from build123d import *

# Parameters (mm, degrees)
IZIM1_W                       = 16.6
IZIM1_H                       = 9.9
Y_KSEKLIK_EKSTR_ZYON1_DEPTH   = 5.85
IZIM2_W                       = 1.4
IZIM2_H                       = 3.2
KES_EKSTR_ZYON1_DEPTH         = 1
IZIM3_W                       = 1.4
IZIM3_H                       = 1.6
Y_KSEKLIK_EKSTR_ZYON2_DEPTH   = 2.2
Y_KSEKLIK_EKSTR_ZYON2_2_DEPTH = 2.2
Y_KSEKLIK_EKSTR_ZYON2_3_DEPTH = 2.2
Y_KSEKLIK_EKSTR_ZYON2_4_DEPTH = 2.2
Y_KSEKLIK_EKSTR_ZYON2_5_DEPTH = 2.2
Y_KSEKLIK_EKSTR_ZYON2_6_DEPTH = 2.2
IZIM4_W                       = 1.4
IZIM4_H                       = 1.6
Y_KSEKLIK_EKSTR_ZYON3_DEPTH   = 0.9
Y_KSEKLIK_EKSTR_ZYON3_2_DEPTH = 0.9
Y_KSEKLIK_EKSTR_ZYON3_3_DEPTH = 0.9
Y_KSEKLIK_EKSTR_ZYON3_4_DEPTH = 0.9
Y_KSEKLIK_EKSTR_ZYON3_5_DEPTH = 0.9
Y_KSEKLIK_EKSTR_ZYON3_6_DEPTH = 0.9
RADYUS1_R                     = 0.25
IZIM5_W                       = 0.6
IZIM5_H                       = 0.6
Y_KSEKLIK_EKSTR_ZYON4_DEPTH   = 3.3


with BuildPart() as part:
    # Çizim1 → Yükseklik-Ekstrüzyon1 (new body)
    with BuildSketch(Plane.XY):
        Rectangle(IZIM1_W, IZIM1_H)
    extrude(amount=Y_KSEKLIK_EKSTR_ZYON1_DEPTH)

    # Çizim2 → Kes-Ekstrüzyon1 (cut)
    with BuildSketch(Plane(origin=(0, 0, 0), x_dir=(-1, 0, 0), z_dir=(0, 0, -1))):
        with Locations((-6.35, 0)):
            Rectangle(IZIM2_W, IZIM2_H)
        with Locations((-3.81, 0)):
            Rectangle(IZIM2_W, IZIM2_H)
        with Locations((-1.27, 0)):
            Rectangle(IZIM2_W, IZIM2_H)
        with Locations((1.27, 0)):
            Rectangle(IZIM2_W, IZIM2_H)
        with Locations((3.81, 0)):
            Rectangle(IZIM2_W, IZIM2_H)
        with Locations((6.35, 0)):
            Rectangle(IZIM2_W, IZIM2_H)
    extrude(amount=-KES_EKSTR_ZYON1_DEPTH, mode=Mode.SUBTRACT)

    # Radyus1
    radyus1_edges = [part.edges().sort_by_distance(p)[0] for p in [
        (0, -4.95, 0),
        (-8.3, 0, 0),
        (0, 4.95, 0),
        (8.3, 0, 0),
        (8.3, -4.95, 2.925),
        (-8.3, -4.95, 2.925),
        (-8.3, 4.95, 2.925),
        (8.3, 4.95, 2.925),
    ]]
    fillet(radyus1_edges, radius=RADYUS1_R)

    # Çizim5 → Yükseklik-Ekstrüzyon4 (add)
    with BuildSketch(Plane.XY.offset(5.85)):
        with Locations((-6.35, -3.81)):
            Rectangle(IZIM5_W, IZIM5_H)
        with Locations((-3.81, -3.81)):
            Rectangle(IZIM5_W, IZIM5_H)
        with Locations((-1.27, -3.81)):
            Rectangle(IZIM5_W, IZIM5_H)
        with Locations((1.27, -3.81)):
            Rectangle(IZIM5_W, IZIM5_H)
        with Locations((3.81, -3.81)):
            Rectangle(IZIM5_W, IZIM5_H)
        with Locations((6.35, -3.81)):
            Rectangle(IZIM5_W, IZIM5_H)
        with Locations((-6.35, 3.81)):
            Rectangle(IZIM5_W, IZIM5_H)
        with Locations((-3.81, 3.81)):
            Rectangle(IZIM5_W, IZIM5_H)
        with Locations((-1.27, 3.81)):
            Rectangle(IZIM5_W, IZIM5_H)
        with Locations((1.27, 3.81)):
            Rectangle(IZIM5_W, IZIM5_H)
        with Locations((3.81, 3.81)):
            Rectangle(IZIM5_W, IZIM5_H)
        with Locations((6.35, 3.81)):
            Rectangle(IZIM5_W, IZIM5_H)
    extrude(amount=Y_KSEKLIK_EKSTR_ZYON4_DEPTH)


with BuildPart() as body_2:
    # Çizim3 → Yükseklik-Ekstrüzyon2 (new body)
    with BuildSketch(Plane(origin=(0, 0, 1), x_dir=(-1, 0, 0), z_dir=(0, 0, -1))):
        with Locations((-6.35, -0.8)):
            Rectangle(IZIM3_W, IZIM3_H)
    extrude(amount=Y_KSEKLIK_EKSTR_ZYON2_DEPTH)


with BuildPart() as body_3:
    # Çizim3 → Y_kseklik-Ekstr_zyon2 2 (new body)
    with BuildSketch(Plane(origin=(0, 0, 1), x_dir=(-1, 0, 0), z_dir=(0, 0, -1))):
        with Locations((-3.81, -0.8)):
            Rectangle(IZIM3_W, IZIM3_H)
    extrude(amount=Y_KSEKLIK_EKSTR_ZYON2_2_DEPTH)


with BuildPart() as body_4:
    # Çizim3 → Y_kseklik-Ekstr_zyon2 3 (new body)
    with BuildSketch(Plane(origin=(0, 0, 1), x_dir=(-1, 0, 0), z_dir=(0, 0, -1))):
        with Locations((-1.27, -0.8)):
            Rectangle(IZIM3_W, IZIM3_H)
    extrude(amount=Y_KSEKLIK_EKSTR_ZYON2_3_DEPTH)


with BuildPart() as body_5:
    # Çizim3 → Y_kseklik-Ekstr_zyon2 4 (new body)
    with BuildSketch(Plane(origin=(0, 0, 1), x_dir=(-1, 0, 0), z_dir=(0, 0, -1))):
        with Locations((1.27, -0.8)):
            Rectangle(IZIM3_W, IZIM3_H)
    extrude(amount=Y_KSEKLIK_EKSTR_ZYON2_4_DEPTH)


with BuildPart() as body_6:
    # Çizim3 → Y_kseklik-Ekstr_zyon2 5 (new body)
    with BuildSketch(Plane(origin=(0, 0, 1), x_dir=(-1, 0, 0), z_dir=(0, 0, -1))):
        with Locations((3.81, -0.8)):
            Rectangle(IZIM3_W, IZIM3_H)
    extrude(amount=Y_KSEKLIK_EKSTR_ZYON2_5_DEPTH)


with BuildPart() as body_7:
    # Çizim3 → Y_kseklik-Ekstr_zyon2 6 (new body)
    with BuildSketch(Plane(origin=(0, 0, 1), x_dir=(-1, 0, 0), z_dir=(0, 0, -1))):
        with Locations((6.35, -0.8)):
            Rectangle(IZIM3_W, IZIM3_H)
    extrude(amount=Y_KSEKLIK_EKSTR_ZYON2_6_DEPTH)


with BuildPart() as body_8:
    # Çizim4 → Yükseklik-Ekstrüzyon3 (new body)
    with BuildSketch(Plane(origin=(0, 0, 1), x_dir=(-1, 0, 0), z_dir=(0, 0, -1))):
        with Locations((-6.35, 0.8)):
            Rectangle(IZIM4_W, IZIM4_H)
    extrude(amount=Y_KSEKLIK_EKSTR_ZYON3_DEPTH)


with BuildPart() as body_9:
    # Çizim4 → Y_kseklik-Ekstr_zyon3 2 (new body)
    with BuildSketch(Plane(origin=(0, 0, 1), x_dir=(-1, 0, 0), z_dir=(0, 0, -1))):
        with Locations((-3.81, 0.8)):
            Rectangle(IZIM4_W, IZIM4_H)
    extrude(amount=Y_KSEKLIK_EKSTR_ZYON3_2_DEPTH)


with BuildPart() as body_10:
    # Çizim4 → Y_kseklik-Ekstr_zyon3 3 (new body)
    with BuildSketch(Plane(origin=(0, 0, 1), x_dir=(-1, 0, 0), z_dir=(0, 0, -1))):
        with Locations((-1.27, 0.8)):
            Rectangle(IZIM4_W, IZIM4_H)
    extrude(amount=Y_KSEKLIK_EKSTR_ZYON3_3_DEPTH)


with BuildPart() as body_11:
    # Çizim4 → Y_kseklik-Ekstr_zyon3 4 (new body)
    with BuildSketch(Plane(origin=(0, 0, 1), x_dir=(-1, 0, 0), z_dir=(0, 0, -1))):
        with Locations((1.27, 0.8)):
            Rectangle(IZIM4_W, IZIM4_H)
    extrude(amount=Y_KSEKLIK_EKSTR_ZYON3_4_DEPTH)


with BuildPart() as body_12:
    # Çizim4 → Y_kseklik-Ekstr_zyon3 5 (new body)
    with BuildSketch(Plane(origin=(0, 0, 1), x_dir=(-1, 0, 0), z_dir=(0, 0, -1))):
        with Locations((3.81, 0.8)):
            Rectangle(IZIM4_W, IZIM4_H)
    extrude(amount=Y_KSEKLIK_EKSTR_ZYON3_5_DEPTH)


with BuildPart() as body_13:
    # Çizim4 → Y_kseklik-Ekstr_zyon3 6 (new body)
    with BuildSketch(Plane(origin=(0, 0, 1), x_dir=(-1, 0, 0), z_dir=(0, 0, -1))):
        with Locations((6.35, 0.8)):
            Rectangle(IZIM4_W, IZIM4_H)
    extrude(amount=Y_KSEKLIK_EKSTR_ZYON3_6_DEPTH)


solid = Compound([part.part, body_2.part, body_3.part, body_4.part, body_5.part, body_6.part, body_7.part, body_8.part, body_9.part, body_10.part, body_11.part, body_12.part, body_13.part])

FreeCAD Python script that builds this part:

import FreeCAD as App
import Part
import Sketcher


def edges_at(feature, points):
    """Names of the edges that pass closest to the given points."""
    edges = feature.Shape.Edges
    near = lambda p: min(range(len(edges)), key=lambda i: edges[i].distToShape(Part.Vertex(*p))[0])
    return sorted({f"Edge{near(p) + 1}" for p in points})


def add_polygon(sketch, points):
    """Adds a closed chain of lines whose ends are joined by coincident constraints."""
    first, n = sketch.GeometryCount, len(points)
    for a, b in zip(points, points[1:] + points[:1]):
        sketch.addGeometry(Part.LineSegment(App.Vector(*a, 0), App.Vector(*b, 0)), False)
    for i in range(n):
        sketch.addConstraint(Sketcher.Constraint("Coincident", first + i, 2, first + (i + 1) % n, 1))

doc = App.newDocument("Part")
body = doc.addObject("PartDesign::Body", "Body")

# Sketch on XY plane
sketch1 = body.newObject("Sketcher::SketchObject", "Sketch")
sketch1.AttachmentSupport = (doc.getObject("XY_Plane"), [""])
sketch1.MapMode = "FlatFace"
add_polygon(sketch1, [(-8, 5), (-8, -5), (8, -5), (8, 5)])  # lines 0-3
sketch1.addConstraint([
    Sketcher.Constraint("Vertical", 0),
    Sketcher.Constraint("Horizontal", 1),
    Sketcher.Constraint("Vertical", 2),
    Sketcher.Constraint("Horizontal", 3),
    Sketcher.Constraint("Symmetric", 0, 2, 2, 2, -1, 1),
    Sketcher.Constraint("DistanceX", 1, 1, 1, 2, 16.6),
    Sketcher.Constraint("DistanceY", 0, 2, 0, 1, 9.9),
])
pad1 = body.newObject("PartDesign::Pad", "Pad")
pad1.Profile = sketch1
pad1.Length = 5.85

# Sketch on XY plane
sketch2 = body.newObject("Sketcher::SketchObject", "Sketch001")
sketch2.AttachmentSupport = (doc.getObject("XY_Plane"), [""])
sketch2.MapMode = "FlatFace"
add_polygon(sketch2, [(7, 1.6), (7, -1.6), (5.7, -1.6), (5.7, 1.6)])  # lines 0-3
add_polygon(sketch2, [(4.5, 1.6), (4.5, -1.6), (3.1, -1.6), (3.1, 1.6)])  # lines 4-7
add_polygon(sketch2, [(2, 1.6), (2, -1.6), (0.6, -1.6), (0.6, 1.6)])  # lines 8-11
add_polygon(sketch2, [(-0.6, 1.6), (-0.6, -1.6), (-2, -1.6), (-2, 1.6)])  # lines 12-15
add_polygon(sketch2, [(-3.1, 1.6), (-3.1, -1.6), (-4.5, -1.6), (-4.5, 1.6)])  # lines 16-19
add_polygon(sketch2, [(-5.7, 1.6), (-5.7, -1.6), (-7, -1.6), (-7, 1.6)])  # lines 20-23
sketch2.addConstraint([
    Sketcher.Constraint("Vertical", 0),
    Sketcher.Constraint("Horizontal", 1),
    Sketcher.Constraint("Vertical", 2),
    Sketcher.Constraint("Horizontal", 3),
    Sketcher.Constraint("Vertical", 4),
    Sketcher.Constraint("Horizontal", 5),
    Sketcher.Constraint("Vertical", 6),
    Sketcher.Constraint("Horizontal", 7),
    Sketcher.Constraint("Vertical", 8),
    Sketcher.Constraint("Horizontal", 9),
    Sketcher.Constraint("Vertical", 10),
    Sketcher.Constraint("Horizontal", 11),
    Sketcher.Constraint("Vertical", 12),
    Sketcher.Constraint("Horizontal", 13),
    Sketcher.Constraint("Vertical", 14),
    Sketcher.Constraint("Horizontal", 15),
    Sketcher.Constraint("Vertical", 16),
    Sketcher.Constraint("Horizontal", 17),
    Sketcher.Constraint("Vertical", 18),
    Sketcher.Constraint("Horizontal", 19),
    Sketcher.Constraint("Vertical", 20),
    Sketcher.Constraint("Horizontal", 21),
    Sketcher.Constraint("Vertical", 22),
    Sketcher.Constraint("Horizontal", 23),
    Sketcher.Constraint("Symmetric", 10, 2, 12, 2, -1, 1),
    Sketcher.Constraint("Symmetric", 8, 2, 14, 2, -1, 1),
    Sketcher.Constraint("Symmetric", 6, 2, 16, 2, -1, 1),
    Sketcher.Constraint("Symmetric", 4, 2, 18, 2, -1, 1),
    Sketcher.Constraint("Symmetric", 2, 2, 20, 2, -1, 1),
    Sketcher.Constraint("Symmetric", 0, 2, 22, 2, -1, 1),
    Sketcher.Constraint("Horizontal", 1, 2, 4, 2),
    Sketcher.Constraint("Horizontal", 3, 2, 6, 2),
    Sketcher.Constraint("Horizontal", 5, 2, 8, 2),
    Sketcher.Constraint("Horizontal", 7, 2, 10, 2),
    Sketcher.Constraint("Horizontal", 9, 2, 12, 2),
    Sketcher.Constraint("Equal", 3, 5),
    Sketcher.Constraint("Equal", 7, 9),
    Sketcher.Constraint("DistanceX", 1, 2, 1, 1, 1.4),
    Sketcher.Constraint("DistanceY", 0, 2, 0, 1, 3.2),
    Sketcher.Constraint("DistanceX", -1, 1, 0, 2, 7.05),
    Sketcher.Constraint("DistanceX", -1, 1, 4, 2, 4.51),
    Sketcher.Constraint("DistanceX", -1, 1, 8, 2, 1.97),
])
pocket1 = body.newObject("PartDesign::Pocket", "Pocket")
pocket1.Profile = sketch2
pocket1.Length = 1
pocket1.Reversed = True
doc.recompute()

fillet = body.newObject("PartDesign::Fillet", "Fillet")
fillet.Base = (pocket1, edges_at(pocket1, [
    (0, -4.95, 0),
    (-8.3, 0, 0),
    (0, 4.95, 0),
    (8.3, 0, 0),
    (8.3, -4.95, 2.925),
    (-8.3, -4.95, 2.925),
    (-8.3, 4.95, 2.925),
    (8.3, 4.95, 2.925),
]))
fillet.Radius = 0.25

# Sketch on XY plane
sketch3 = body.newObject("Sketcher::SketchObject", "Sketch002")
sketch3.AttachmentSupport = (doc.getObject("XY_Plane"), [""])
sketch3.MapMode = "FlatFace"
sketch3.AttachmentOffset = App.Placement(App.Vector(0, 0, 5.85), App.Rotation())
add_polygon(sketch3, [(-6.7, -3.5), (-6.7, -4.1), (-6, -4.1), (-6, -3.5)])  # lines 0-3
add_polygon(sketch3, [(-4.1, -3.5), (-4.1, -4.1), (-3.5, -4.1), (-3.5, -3.5)])  # lines 4-7
add_polygon(sketch3, [(-1.6, -3.5), (-1.6, -4.1), (-1, -4.1), (-1, -3.5)])  # lines 8-11
add_polygon(sketch3, [(1, -3.5), (1, -4.1), (1.6, -4.1), (1.6, -3.5)])  # lines 12-15
add_polygon(sketch3, [(3.5, -3.5), (3.5, -4.1), (4.1, -4.1), (4.1, -3.5)])  # lines 16-19
add_polygon(sketch3, [(6, -3.5), (6, -4.1), (6.7, -4.1), (6.7, -3.5)])  # lines 20-23
add_polygon(sketch3, [(-6.7, 4.1), (-6.7, 3.5), (-6, 3.5), (-6, 4.1)])  # lines 24-27
add_polygon(sketch3, [(-4.1, 4.1), (-4.1, 3.5), (-3.5, 3.5), (-3.5, 4.1)])  # lines 28-31
add_polygon(sketch3, [(-1.6, 4.1), (-1.6, 3.5), (-1, 3.5), (-1, 4.1)])  # lines 32-35
add_polygon(sketch3, [(1, 4.1), (1, 3.5), (1.6, 3.5), (1.6, 4.1)])  # lines 36-39
add_polygon(sketch3, [(3.5, 4.1), (3.5, 3.5), (4.1, 3.5), (4.1, 4.1)])  # lines 40-43
add_polygon(sketch3, [(6, 4.1), (6, 3.5), (6.7, 3.5), (6.7, 4.1)])  # lines 44-47
sketch3.addConstraint([
    Sketcher.Constraint("Vertical", 0),
    Sketcher.Constraint("Horizontal", 1),
    Sketcher.Constraint("Vertical", 2),
    Sketcher.Constraint("Horizontal", 3),
    Sketcher.Constraint("Vertical", 4),
    Sketcher.Constraint("Horizontal", 5),
    Sketcher.Constraint("Vertical", 6),
    Sketcher.Constraint("Horizontal", 7),
    Sketcher.Constraint("Vertical", 8),
    Sketcher.Constraint("Horizontal", 9),
    Sketcher.Constraint("Vertical", 10),
    Sketcher.Constraint("Horizontal", 11),
    Sketcher.Constraint("Vertical", 12),
    Sketcher.Constraint("Horizontal", 13),
    Sketcher.Constraint("Vertical", 14),
    Sketcher.Constraint("Horizontal", 15),
    Sketcher.Constraint("Vertical", 16),
    Sketcher.Constraint("Horizontal", 17),
    Sketcher.Constraint("Vertical", 18),
    Sketcher.Constraint("Horizontal", 19),
    Sketcher.Constraint("Vertical", 20),
    Sketcher.Constraint("Horizontal", 21),
    Sketcher.Constraint("Vertical", 22),
    Sketcher.Constraint("Horizontal", 23),
    Sketcher.Constraint("Vertical", 24),
    Sketcher.Constraint("Horizontal", 25),
    Sketcher.Constraint("Vertical", 26),
    Sketcher.Constraint("Horizontal", 27),
    Sketcher.Constraint("Vertical", 28),
    Sketcher.Constraint("Horizontal", 29),
    Sketcher.Constraint("Vertical", 30),
    Sketcher.Constraint("Horizontal", 31),
    Sketcher.Constraint("Vertical", 32),
    Sketcher.Constraint("Horizontal", 33),
    Sketcher.Constraint("Vertical", 34),
    Sketcher.Constraint("Horizontal", 35),
    Sketcher.Constraint("Vertical", 36),
    Sketcher.Constraint("Horizontal", 37),
    Sketcher.Constraint("Vertical", 38),
    Sketcher.Constraint("Horizontal", 39),
    Sketcher.Constraint("Vertical", 40),
    Sketcher.Constraint("Horizontal", 41),
    Sketcher.Constraint("Vertical", 42),
    Sketcher.Constraint("Horizontal", 43),
    Sketcher.Constraint("Vertical", 44),
    Sketcher.Constraint("Horizontal", 45),
    Sketcher.Constraint("Vertical", 46),
    Sketcher.Constraint("Horizontal", 47),
    Sketcher.Constraint("Symmetric", 22, 2, 24, 2, -1, 1),
    Sketcher.Constraint("Symmetric", 20, 2, 26, 2, -1, 1),
    Sketcher.Constraint("Symmetric", 18, 2, 28, 2, -1, 1),
    Sketcher.Constraint("Symmetric", 16, 2, 30, 2, -1, 1),
    Sketcher.Constraint("Symmetric", 14, 2, 32, 2, -1, 1),
    Sketcher.Constraint("Symmetric", 12, 2, 34, 2, -1, 1),
    Sketcher.Constraint("Symmetric", 10, 2, 36, 2, -1, 1),
    Sketcher.Constraint("Symmetric", 8, 2, 38, 2, -1, 1),
    Sketcher.Constraint("Symmetric", 6, 2, 40, 2, -1, 1),
    Sketcher.Constraint("Symmetric", 4, 2, 42, 2, -1, 1),
    Sketcher.Constraint("Symmetric", 2, 2, 44, 2, -1, 1),
    Sketcher.Constraint("Symmetric", 0, 2, 46, 2, -1, 1),
    Sketcher.Constraint("Symmetric", 9, 2, 12, 2, -2),
    Sketcher.Constraint("Symmetric", 11, 2, 14, 2, -2),
    Sketcher.Constraint("Symmetric", 5, 2, 16, 2, -2),
    Sketcher.Constraint("Symmetric", 7, 2, 18, 2, -2),
    Sketcher.Constraint("Symmetric", 1, 2, 20, 2, -2),
    Sketcher.Constraint("Symmetric", 3, 2, 22, 2, -2),
    Sketcher.Constraint("Horizontal", 1, 2, 4, 2),
    Sketcher.Constraint("Horizontal", 3, 2, 6, 2),
    Sketcher.Constraint("Horizontal", 5, 2, 8, 2),
    Sketcher.Constraint("Horizontal", 7, 2, 10, 2),
    Sketcher.Constraint("Equal", 3, 5),
    Sketcher.Constraint("Equal", 7, 9),
    Sketcher.Constraint("Equal", 47, 0),
    Sketcher.Constraint("DistanceX", 1, 1, 1, 2, 0.6),
    Sketcher.Constraint("DistanceX", 0, 2, -1, 1, 6.65),
    Sketcher.Constraint("DistanceY", 0, 2, -1, 1, 4.11),
    Sketcher.Constraint("DistanceX", 4, 2, -1, 1, 4.11),
    Sketcher.Constraint("DistanceX", 8, 2, -1, 1, 1.57),
])
pad2 = body.newObject("PartDesign::Pad", "Pad001")
pad2.Profile = sketch3
pad2.Length = 3.3
body2 = doc.addObject("PartDesign::Body", "Body001")

# Sketch on XY plane
sketch4 = body2.newObject("Sketcher::SketchObject", "Sketch003")
sketch4.AttachmentSupport = (doc.getObject("XY_Plane001"), [""])
sketch4.MapMode = "FlatFace"
sketch4.AttachmentOffset = App.Placement(App.Vector(0, 0, 1), App.Rotation())
add_polygon(sketch4, [(7, 0), (7, -1.6), (5.7, -1.6), (5.7, 0)])  # lines 0-3
sketch4.addConstraint([
    Sketcher.Constraint("Vertical", 0),
    Sketcher.Constraint("Horizontal", 1),
    Sketcher.Constraint("Vertical", 2),
    Sketcher.Constraint("Horizontal", 3),
    Sketcher.Constraint("PointOnObject", 2, 2, -1),
    Sketcher.Constraint("DistanceX", 1, 2, 1, 1, 1.4),
    Sketcher.Constraint("DistanceY", 0, 2, 0, 1, 1.6),
    Sketcher.Constraint("DistanceX", -1, 1, 0, 2, 7.05),
])
pad3 = body2.newObject("PartDesign::Pad", "Pad002")
pad3.Profile = sketch4
pad3.Length = 2.2
pad3.Reversed = True
body3 = doc.addObject("PartDesign::Body", "Body002")

# Sketch on XY plane
sketch5 = body3.newObject("Sketcher::SketchObject", "Sketch004")
sketch5.AttachmentSupport = (doc.getObject("XY_Plane002"), [""])
sketch5.MapMode = "FlatFace"
sketch5.AttachmentOffset = App.Placement(App.Vector(0, 0, 1), App.Rotation())
add_polygon(sketch5, [(4.5, 0), (4.5, -1.6), (3.1, -1.6), (3.1, 0)])  # lines 0-3
sketch5.addConstraint([
    Sketcher.Constraint("Vertical", 0),
    Sketcher.Constraint("Horizontal", 1),
    Sketcher.Constraint("Vertical", 2),
    Sketcher.Constraint("Horizontal", 3),
    Sketcher.Constraint("PointOnObject", 2, 2, -1),
    Sketcher.Constraint("DistanceX", 1, 2, 1, 1, 1.4),
    Sketcher.Constraint("DistanceY", 0, 2, 0, 1, 1.6),
    Sketcher.Constraint("DistanceX", -1, 1, 0, 2, 4.51),
])
pad4 = body3.newObject("PartDesign::Pad", "Pad003")
pad4.Profile = sketch5
pad4.Length = 2.2
pad4.Reversed = True
body4 = doc.addObject("PartDesign::Body", "Body003")

# Sketch on XY plane
sketch6 = body4.newObject("Sketcher::SketchObject", "Sketch005")
sketch6.AttachmentSupport = (doc.getObject("XY_Plane003"), [""])
sketch6.MapMode = "FlatFace"
sketch6.AttachmentOffset = App.Placement(App.Vector(0, 0, 1), App.Rotation())
add_polygon(sketch6, [(2, 0), (2, -1.6), (0.6, -1.6), (0.6, 0)])  # lines 0-3
sketch6.addConstraint([
    Sketcher.Constraint("Vertical", 0),
    Sketcher.Constraint("Horizontal", 1),
    Sketcher.Constraint("Vertical", 2),
    Sketcher.Constraint("Horizontal", 3),
    Sketcher.Constraint("PointOnObject", 2, 2, -1),
    Sketcher.Constraint("DistanceX", 1, 2, 1, 1, 1.4),
    Sketcher.Constraint("DistanceY", 0, 2, 0, 1, 1.6),
    Sketcher.Constraint("DistanceX", -1, 1, 0, 2, 1.97),
])
pad5 = body4.newObject("PartDesign::Pad", "Pad004")
pad5.Profile = sketch6
pad5.Length = 2.2
pad5.Reversed = True
body5 = doc.addObject("PartDesign::Body", "Body004")

# Sketch on XY plane
sketch7 = body5.newObject("Sketcher::SketchObject", "Sketch006")
sketch7.AttachmentSupport = (doc.getObject("XY_Plane004"), [""])
sketch7.MapMode = "FlatFace"
sketch7.AttachmentOffset = App.Placement(App.Vector(0, 0, 1), App.Rotation())
add_polygon(sketch7, [(-0.6, 0), (-0.6, -1.6), (-2, -1.6), (-2, 0)])  # lines 0-3
sketch7.addConstraint([
    Sketcher.Constraint("Vertical", 0),
    Sketcher.Constraint("Horizontal", 1),
    Sketcher.Constraint("Vertical", 2),
    Sketcher.Constraint("Horizontal", 3),
    Sketcher.Constraint("PointOnObject", 2, 2, -1),
    Sketcher.Constraint("DistanceX", 1, 2, 1, 1, 1.4),
    Sketcher.Constraint("DistanceY", 0, 2, 0, 1, 1.6),
    Sketcher.Constraint("DistanceX", 0, 2, -1, 1, 0.57),
])
pad6 = body5.newObject("PartDesign::Pad", "Pad005")
pad6.Profile = sketch7
pad6.Length = 2.2
pad6.Reversed = True
body6 = doc.addObject("PartDesign::Body", "Body005")

# Sketch on XY plane
sketch8 = body6.newObject("Sketcher::SketchObject", "Sketch007")
sketch8.AttachmentSupport = (doc.getObject("XY_Plane005"), [""])
sketch8.MapMode = "FlatFace"
sketch8.AttachmentOffset = App.Placement(App.Vector(0, 0, 1), App.Rotation())
add_polygon(sketch8, [(-3.1, 0), (-3.1, -1.6), (-4.5, -1.6), (-4.5, 0)])  # lines 0-3
sketch8.addConstraint([
    Sketcher.Constraint("Vertical", 0),
    Sketcher.Constraint("Horizontal", 1),
    Sketcher.Constraint("Vertical", 2),
    Sketcher.Constraint("Horizontal", 3),
    Sketcher.Constraint("PointOnObject", 2, 2, -1),
    Sketcher.Constraint("DistanceX", 1, 2, 1, 1, 1.4),
    Sketcher.Constraint("DistanceY", 0, 2, 0, 1, 1.6),
    Sketcher.Constraint("DistanceX", 0, 2, -1, 1, 3.11),
])
pad7 = body6.newObject("PartDesign::Pad", "Pad006")
pad7.Profile = sketch8
pad7.Length = 2.2
pad7.Reversed = True
body7 = doc.addObject("PartDesign::Body", "Body006")

# Sketch on XY plane
sketch9 = body7.newObject("Sketcher::SketchObject", "Sketch008")
sketch9.AttachmentSupport = (doc.getObject("XY_Plane006"), [""])
sketch9.MapMode = "FlatFace"
sketch9.AttachmentOffset = App.Placement(App.Vector(0, 0, 1), App.Rotation())
add_polygon(sketch9, [(-5.7, 0), (-5.7, -1.6), (-7, -1.6), (-7, 0)])  # lines 0-3
sketch9.addConstraint([
    Sketcher.Constraint("Vertical", 0),
    Sketcher.Constraint("Horizontal", 1),
    Sketcher.Constraint("Vertical", 2),
    Sketcher.Constraint("Horizontal", 3),
    Sketcher.Constraint("PointOnObject", 2, 2, -1),
    Sketcher.Constraint("DistanceX", 1, 2, 1, 1, 1.4),
    Sketcher.Constraint("DistanceY", 0, 2, 0, 1, 1.6),
    Sketcher.Constraint("DistanceX", 0, 2, -1, 1, 5.65),
])
pad8 = body7.newObject("PartDesign::Pad", "Pad007")
pad8.Profile = sketch9
pad8.Length = 2.2
pad8.Reversed = True
body8 = doc.addObject("PartDesign::Body", "Body007")

# Sketch on XY plane
sketch10 = body8.newObject("Sketcher::SketchObject", "Sketch009")
sketch10.AttachmentSupport = (doc.getObject("XY_Plane007"), [""])
sketch10.MapMode = "FlatFace"
sketch10.AttachmentOffset = App.Placement(App.Vector(0, 0, 1), App.Rotation())
add_polygon(sketch10, [(7, 1.6), (7, 0), (5.7, 0), (5.7, 1.6)])  # lines 0-3
sketch10.addConstraint([
    Sketcher.Constraint("Vertical", 0),
    Sketcher.Constraint("Horizontal", 1),
    Sketcher.Constraint("Vertical", 2),
    Sketcher.Constraint("Horizontal", 3),
    Sketcher.Constraint("PointOnObject", 0, 2, -1),
    Sketcher.Constraint("DistanceX", 1, 2, 1, 1, 1.4),
    Sketcher.Constraint("DistanceY", 0, 2, 0, 1, 1.6),
    Sketcher.Constraint("DistanceX", -1, 1, 0, 2, 7.05),
])
pad9 = body8.newObject("PartDesign::Pad", "Pad008")
pad9.Profile = sketch10
pad9.Length = 0.9
pad9.Reversed = True
body9 = doc.addObject("PartDesign::Body", "Body008")

# Sketch on XY plane
sketch11 = body9.newObject("Sketcher::SketchObject", "Sketch010")
sketch11.AttachmentSupport = (doc.getObject("XY_Plane008"), [""])
sketch11.MapMode = "FlatFace"
sketch11.AttachmentOffset = App.Placement(App.Vector(0, 0, 1), App.Rotation())
add_polygon(sketch11, [(4.5, 1.6), (4.5, 0), (3.1, 0), (3.1, 1.6)])  # lines 0-3
sketch11.addConstraint([
    Sketcher.Constraint("Vertical", 0),
    Sketcher.Constraint("Horizontal", 1),
    Sketcher.Constraint("Vertical", 2),
    Sketcher.Constraint("Horizontal", 3),
    Sketcher.Constraint("PointOnObject", 0, 2, -1),
    Sketcher.Constraint("DistanceX", 1, 2, 1, 1, 1.4),
    Sketcher.Constraint("DistanceY", 0, 2, 0, 1, 1.6),
    Sketcher.Constraint("DistanceX", -1, 1, 0, 2, 4.51),
])
pad10 = body9.newObject("PartDesign::Pad", "Pad009")
pad10.Profile = sketch11
pad10.Length = 0.9
pad10.Reversed = True
body10 = doc.addObject("PartDesign::Body", "Body009")

# Sketch on XY plane
sketch12 = body10.newObject("Sketcher::SketchObject", "Sketch011")
sketch12.AttachmentSupport = (doc.getObject("XY_Plane009"), [""])
sketch12.MapMode = "FlatFace"
sketch12.AttachmentOffset = App.Placement(App.Vector(0, 0, 1), App.Rotation())
add_polygon(sketch12, [(2, 1.6), (2, 0), (0.6, 0), (0.6, 1.6)])  # lines 0-3
sketch12.addConstraint([
    Sketcher.Constraint("Vertical", 0),
    Sketcher.Constraint("Horizontal", 1),
    Sketcher.Constraint("Vertical", 2),
    Sketcher.Constraint("Horizontal", 3),
    Sketcher.Constraint("PointOnObject", 0, 2, -1),
    Sketcher.Constraint("DistanceX", 1, 2, 1, 1, 1.4),
    Sketcher.Constraint("DistanceY", 0, 2, 0, 1, 1.6),
    Sketcher.Constraint("DistanceX", -1, 1, 0, 2, 1.97),
])
pad11 = body10.newObject("PartDesign::Pad", "Pad010")
pad11.Profile = sketch12
pad11.Length = 0.9
pad11.Reversed = True
body11 = doc.addObject("PartDesign::Body", "Body010")

# Sketch on XY plane
sketch13 = body11.newObject("Sketcher::SketchObject", "Sketch012")
sketch13.AttachmentSupport = (doc.getObject("XY_Plane010"), [""])
sketch13.MapMode = "FlatFace"
sketch13.AttachmentOffset = App.Placement(App.Vector(0, 0, 1), App.Rotation())
add_polygon(sketch13, [(-0.6, 1.6), (-0.6, 0), (-2, 0), (-2, 1.6)])  # lines 0-3
sketch13.addConstraint([
    Sketcher.Constraint("Vertical", 0),
    Sketcher.Constraint("Horizontal", 1),
    Sketcher.Constraint("Vertical", 2),
    Sketcher.Constraint("Horizontal", 3),
    Sketcher.Constraint("PointOnObject", 0, 2, -1),
    Sketcher.Constraint("DistanceX", 1, 2, 1, 1, 1.4),
    Sketcher.Constraint("DistanceY", 0, 2, 0, 1, 1.6),
    Sketcher.Constraint("DistanceX", 0, 2, -1, 1, 0.57),
])
pad12 = body11.newObject("PartDesign::Pad", "Pad011")
pad12.Profile = sketch13
pad12.Length = 0.9
pad12.Reversed = True
body12 = doc.addObject("PartDesign::Body", "Body011")

# Sketch on XY plane
sketch14 = body12.newObject("Sketcher::SketchObject", "Sketch013")
sketch14.AttachmentSupport = (doc.getObject("XY_Plane011"), [""])
sketch14.MapMode = "FlatFace"
sketch14.AttachmentOffset = App.Placement(App.Vector(0, 0, 1), App.Rotation())
add_polygon(sketch14, [(-3.1, 1.6), (-3.1, 0), (-4.5, 0), (-4.5, 1.6)])  # lines 0-3
sketch14.addConstraint([
    Sketcher.Constraint("Vertical", 0),
    Sketcher.Constraint("Horizontal", 1),
    Sketcher.Constraint("Vertical", 2),
    Sketcher.Constraint("Horizontal", 3),
    Sketcher.Constraint("PointOnObject", 0, 2, -1),
    Sketcher.Constraint("DistanceX", 1, 2, 1, 1, 1.4),
    Sketcher.Constraint("DistanceY", 0, 2, 0, 1, 1.6),
    Sketcher.Constraint("DistanceX", 0, 2, -1, 1, 3.11),
])
pad13 = body12.newObject("PartDesign::Pad", "Pad012")
pad13.Profile = sketch14
pad13.Length = 0.9
pad13.Reversed = True
body13 = doc.addObject("PartDesign::Body", "Body012")

# Sketch on XY plane
sketch15 = body13.newObject("Sketcher::SketchObject", "Sketch014")
sketch15.AttachmentSupport = (doc.getObject("XY_Plane012"), [""])
sketch15.MapMode = "FlatFace"
sketch15.AttachmentOffset = App.Placement(App.Vector(0, 0, 1), App.Rotation())
add_polygon(sketch15, [(-5.7, 1.6), (-5.7, 0), (-7, 0), (-7, 1.6)])  # lines 0-3
sketch15.addConstraint([
    Sketcher.Constraint("Vertical", 0),
    Sketcher.Constraint("Horizontal", 1),
    Sketcher.Constraint("Vertical", 2),
    Sketcher.Constraint("Horizontal", 3),
    Sketcher.Constraint("PointOnObject", 0, 2, -1),
    Sketcher.Constraint("DistanceX", 1, 2, 1, 1, 1.4),
    Sketcher.Constraint("DistanceY", 0, 2, 0, 1, 1.6),
    Sketcher.Constraint("DistanceX", 0, 2, -1, 1, 5.65),
])
pad14 = body13.newObject("PartDesign::Pad", "Pad013")
pad14.Profile = sketch15
pad14.Length = 0.9
pad14.Reversed = True

doc.recompute()
